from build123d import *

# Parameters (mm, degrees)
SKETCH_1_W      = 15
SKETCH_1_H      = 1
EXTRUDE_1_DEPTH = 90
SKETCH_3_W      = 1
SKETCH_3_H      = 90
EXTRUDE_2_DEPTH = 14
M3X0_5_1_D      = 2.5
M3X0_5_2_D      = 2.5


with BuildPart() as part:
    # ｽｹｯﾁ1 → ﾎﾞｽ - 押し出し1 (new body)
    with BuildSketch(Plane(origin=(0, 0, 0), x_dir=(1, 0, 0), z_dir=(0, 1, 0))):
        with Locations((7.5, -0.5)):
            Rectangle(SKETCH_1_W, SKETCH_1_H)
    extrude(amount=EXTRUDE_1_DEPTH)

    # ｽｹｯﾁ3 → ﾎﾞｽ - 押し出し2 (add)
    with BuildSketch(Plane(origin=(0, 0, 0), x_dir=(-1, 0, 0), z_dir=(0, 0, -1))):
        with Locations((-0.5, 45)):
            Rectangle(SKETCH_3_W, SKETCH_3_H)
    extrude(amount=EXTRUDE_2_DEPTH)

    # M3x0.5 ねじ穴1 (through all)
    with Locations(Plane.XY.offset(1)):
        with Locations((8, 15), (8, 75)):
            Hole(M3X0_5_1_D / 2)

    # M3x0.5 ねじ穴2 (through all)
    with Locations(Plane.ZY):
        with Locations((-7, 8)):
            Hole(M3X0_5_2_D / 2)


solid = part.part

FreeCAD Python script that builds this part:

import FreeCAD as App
import Part
import Sketcher
from FreeCAD import Vector
Q = App.Units.Quantity


def add_polygon(sketch, points):
    """Adds a closed chain of lines whose ends are joined by coincident constraints."""
    first, n = sketch.GeometryCount, len(points)
    for a, b in zip(points, points[1:] + points[:1]):
        sketch.addGeometry(Part.LineSegment(App.Vector(*a, 0), App.Vector(*b, 0)), False)
    for i in range(n):
        sketch.addConstraint(Sketcher.Constraint("Coincident", first + i, 2, first + (i + 1) % n, 1))

doc = App.newDocument("Part")
body = doc.addObject("PartDesign::Body", "Body")

sketch1 = doc.addObject("Sketcher::SketchObject", "Sketch")
body.addObject(sketch1)
sketch1.AttachmentSupport = (doc.XZ_Plane, [""])
sketch1.MapMode = "FlatFace"
add_polygon(sketch1, [(0, 0), (0, 1), (15, 1), (15, 0)])
sketch1.addConstraint(Sketcher.Constraint("Vertical", 0))
sketch1.addConstraint(Sketcher.Constraint("Horizontal", 1))
sketch1.addConstraint(Sketcher.Constraint("Vertical", 2))
sketch1.addConstraint(Sketcher.Constraint("Horizontal", 3))
sketch1.addConstraint(Sketcher.Constraint("Coincident", 3, 2, -1, 1))
sketch1.addConstraint(Sketcher.Constraint("DistanceX", 1, 1, 1, 2, Q("15 mm")))
sketch1.addConstraint(Sketcher.Constraint("DistanceY", 0, 1, 0, 2, Q("1 mm")))
pad1 = doc.addObject("PartDesign::Pad", "Pad")
body.addObject(pad1)
pad1.Profile = sketch1
pad1.Length = 90
pad1.Reversed = True

sketch2 = doc.addObject("Sketcher::SketchObject", "Sketch001")
body.addObject(sketch2)
sketch2.AttachmentSupport = (doc.XY_Plane, [""])
sketch2.MapMode = "FlatFace"
add_polygon(sketch2, [(1, 90), (1, 0), (0, 0), (0, 90)])
sketch2.addConstraint(Sketcher.Constraint("Vertical", 0))
sketch2.addConstraint(Sketcher.Constraint("Horizontal", 1))
sketch2.addConstraint(Sketcher.Constraint("Vertical", 2))
sketch2.addConstraint(Sketcher.Constraint("Horizontal", 3))
sketch2.addConstraint(Sketcher.Constraint("Coincident", 1, 2, -1, 1))
sketch2.addConstraint(Sketcher.Constraint("DistanceX", 1, 2, 1, 1, Q("1 mm")))
sketch2.addConstraint(Sketcher.Constraint("DistanceY", 0, 2, 0, 1, Q("90 mm")))
pad2 = doc.addObject("PartDesign::Pad", "Pad001")
body.addObject(pad2)
pad2.Profile = sketch2
pad2.Length = 14
pad2.Reversed = True

sketch3 = doc.addObject("Sketcher::SketchObject", "Sketch002")
body.addObject(sketch3)
sketch3.AttachmentSupport = (doc.XY_Plane, [""])
sketch3.MapMode = "FlatFace"
sketch3.AttachmentOffset = App.Placement(Vector(0, 0, 1), App.Rotation())
sketch3.addGeometry(Part.Circle(Vector(8, 15, 0), Vector(0, 0, 1), 1.25), False)
sketch3.addGeometry(Part.Circle(Vector(8, 75, 0), Vector(0, 0, 1), 1.25), False)
sketch3.addConstraint(Sketcher.Constraint("Equal", 0, 1))
sketch3.addConstraint(Sketcher.Constraint("Vertical", 0, 3, 1, 3))
sketch3.addConstraint(Sketcher.Constraint("Diameter", 0, Q("2.5 mm")))
sketch3.addConstraint(Sketcher.Constraint("DistanceX", -1, 1, 0, 3, Q("8 mm")))
sketch3.addConstraint(Sketcher.Constraint("DistanceY", -1, 1, 0, 3, Q("15 mm")))
sketch3.addConstraint(Sketcher.Constraint("DistanceY", -1, 1, 1, 3, Q("75 mm")))
doc.recompute()
hole = doc.addObject("PartDesign::Hole", "Hole")
body.addObject(hole)
hole.Profile = sketch3
hole.ThreadType = "None"
hole.Diameter = 2.5
hole.DepthType = "ThroughAll"

sketch4 = doc.addObject("Sketcher::SketchObject", "Sketch003")
body.addObject(sketch4)
sketch4.AttachmentSupport = (doc.YZ_Plane, [""])
sketch4.MapMode = "FlatFace"
sketch4.addGeometry(Part.Circle(Vector(8, -7, 0), Vector(0, 0, 1), 1.25), False)
sketch4.addConstraint(Sketcher.Constraint("Diameter", 0, Q("2.5 mm")))
sketch4.addConstraint(Sketcher.Constraint("DistanceX", -1, 1, 0, 3, Q("8 mm")))
sketch4.addConstraint(Sketcher.Constraint("DistanceY", 0, 3, -1, 1, Q("7 mm")))
doc.recompute()
hole2 = doc.addObject("PartDesign::Hole", "Hole001")
body.addObject(hole2)
hole2.Profile = sketch4
hole2.ThreadType = "None"
hole2.Diameter = 2.5
hole2.DepthType = "ThroughAll"
hole2.Reversed = True

doc.recompute()
